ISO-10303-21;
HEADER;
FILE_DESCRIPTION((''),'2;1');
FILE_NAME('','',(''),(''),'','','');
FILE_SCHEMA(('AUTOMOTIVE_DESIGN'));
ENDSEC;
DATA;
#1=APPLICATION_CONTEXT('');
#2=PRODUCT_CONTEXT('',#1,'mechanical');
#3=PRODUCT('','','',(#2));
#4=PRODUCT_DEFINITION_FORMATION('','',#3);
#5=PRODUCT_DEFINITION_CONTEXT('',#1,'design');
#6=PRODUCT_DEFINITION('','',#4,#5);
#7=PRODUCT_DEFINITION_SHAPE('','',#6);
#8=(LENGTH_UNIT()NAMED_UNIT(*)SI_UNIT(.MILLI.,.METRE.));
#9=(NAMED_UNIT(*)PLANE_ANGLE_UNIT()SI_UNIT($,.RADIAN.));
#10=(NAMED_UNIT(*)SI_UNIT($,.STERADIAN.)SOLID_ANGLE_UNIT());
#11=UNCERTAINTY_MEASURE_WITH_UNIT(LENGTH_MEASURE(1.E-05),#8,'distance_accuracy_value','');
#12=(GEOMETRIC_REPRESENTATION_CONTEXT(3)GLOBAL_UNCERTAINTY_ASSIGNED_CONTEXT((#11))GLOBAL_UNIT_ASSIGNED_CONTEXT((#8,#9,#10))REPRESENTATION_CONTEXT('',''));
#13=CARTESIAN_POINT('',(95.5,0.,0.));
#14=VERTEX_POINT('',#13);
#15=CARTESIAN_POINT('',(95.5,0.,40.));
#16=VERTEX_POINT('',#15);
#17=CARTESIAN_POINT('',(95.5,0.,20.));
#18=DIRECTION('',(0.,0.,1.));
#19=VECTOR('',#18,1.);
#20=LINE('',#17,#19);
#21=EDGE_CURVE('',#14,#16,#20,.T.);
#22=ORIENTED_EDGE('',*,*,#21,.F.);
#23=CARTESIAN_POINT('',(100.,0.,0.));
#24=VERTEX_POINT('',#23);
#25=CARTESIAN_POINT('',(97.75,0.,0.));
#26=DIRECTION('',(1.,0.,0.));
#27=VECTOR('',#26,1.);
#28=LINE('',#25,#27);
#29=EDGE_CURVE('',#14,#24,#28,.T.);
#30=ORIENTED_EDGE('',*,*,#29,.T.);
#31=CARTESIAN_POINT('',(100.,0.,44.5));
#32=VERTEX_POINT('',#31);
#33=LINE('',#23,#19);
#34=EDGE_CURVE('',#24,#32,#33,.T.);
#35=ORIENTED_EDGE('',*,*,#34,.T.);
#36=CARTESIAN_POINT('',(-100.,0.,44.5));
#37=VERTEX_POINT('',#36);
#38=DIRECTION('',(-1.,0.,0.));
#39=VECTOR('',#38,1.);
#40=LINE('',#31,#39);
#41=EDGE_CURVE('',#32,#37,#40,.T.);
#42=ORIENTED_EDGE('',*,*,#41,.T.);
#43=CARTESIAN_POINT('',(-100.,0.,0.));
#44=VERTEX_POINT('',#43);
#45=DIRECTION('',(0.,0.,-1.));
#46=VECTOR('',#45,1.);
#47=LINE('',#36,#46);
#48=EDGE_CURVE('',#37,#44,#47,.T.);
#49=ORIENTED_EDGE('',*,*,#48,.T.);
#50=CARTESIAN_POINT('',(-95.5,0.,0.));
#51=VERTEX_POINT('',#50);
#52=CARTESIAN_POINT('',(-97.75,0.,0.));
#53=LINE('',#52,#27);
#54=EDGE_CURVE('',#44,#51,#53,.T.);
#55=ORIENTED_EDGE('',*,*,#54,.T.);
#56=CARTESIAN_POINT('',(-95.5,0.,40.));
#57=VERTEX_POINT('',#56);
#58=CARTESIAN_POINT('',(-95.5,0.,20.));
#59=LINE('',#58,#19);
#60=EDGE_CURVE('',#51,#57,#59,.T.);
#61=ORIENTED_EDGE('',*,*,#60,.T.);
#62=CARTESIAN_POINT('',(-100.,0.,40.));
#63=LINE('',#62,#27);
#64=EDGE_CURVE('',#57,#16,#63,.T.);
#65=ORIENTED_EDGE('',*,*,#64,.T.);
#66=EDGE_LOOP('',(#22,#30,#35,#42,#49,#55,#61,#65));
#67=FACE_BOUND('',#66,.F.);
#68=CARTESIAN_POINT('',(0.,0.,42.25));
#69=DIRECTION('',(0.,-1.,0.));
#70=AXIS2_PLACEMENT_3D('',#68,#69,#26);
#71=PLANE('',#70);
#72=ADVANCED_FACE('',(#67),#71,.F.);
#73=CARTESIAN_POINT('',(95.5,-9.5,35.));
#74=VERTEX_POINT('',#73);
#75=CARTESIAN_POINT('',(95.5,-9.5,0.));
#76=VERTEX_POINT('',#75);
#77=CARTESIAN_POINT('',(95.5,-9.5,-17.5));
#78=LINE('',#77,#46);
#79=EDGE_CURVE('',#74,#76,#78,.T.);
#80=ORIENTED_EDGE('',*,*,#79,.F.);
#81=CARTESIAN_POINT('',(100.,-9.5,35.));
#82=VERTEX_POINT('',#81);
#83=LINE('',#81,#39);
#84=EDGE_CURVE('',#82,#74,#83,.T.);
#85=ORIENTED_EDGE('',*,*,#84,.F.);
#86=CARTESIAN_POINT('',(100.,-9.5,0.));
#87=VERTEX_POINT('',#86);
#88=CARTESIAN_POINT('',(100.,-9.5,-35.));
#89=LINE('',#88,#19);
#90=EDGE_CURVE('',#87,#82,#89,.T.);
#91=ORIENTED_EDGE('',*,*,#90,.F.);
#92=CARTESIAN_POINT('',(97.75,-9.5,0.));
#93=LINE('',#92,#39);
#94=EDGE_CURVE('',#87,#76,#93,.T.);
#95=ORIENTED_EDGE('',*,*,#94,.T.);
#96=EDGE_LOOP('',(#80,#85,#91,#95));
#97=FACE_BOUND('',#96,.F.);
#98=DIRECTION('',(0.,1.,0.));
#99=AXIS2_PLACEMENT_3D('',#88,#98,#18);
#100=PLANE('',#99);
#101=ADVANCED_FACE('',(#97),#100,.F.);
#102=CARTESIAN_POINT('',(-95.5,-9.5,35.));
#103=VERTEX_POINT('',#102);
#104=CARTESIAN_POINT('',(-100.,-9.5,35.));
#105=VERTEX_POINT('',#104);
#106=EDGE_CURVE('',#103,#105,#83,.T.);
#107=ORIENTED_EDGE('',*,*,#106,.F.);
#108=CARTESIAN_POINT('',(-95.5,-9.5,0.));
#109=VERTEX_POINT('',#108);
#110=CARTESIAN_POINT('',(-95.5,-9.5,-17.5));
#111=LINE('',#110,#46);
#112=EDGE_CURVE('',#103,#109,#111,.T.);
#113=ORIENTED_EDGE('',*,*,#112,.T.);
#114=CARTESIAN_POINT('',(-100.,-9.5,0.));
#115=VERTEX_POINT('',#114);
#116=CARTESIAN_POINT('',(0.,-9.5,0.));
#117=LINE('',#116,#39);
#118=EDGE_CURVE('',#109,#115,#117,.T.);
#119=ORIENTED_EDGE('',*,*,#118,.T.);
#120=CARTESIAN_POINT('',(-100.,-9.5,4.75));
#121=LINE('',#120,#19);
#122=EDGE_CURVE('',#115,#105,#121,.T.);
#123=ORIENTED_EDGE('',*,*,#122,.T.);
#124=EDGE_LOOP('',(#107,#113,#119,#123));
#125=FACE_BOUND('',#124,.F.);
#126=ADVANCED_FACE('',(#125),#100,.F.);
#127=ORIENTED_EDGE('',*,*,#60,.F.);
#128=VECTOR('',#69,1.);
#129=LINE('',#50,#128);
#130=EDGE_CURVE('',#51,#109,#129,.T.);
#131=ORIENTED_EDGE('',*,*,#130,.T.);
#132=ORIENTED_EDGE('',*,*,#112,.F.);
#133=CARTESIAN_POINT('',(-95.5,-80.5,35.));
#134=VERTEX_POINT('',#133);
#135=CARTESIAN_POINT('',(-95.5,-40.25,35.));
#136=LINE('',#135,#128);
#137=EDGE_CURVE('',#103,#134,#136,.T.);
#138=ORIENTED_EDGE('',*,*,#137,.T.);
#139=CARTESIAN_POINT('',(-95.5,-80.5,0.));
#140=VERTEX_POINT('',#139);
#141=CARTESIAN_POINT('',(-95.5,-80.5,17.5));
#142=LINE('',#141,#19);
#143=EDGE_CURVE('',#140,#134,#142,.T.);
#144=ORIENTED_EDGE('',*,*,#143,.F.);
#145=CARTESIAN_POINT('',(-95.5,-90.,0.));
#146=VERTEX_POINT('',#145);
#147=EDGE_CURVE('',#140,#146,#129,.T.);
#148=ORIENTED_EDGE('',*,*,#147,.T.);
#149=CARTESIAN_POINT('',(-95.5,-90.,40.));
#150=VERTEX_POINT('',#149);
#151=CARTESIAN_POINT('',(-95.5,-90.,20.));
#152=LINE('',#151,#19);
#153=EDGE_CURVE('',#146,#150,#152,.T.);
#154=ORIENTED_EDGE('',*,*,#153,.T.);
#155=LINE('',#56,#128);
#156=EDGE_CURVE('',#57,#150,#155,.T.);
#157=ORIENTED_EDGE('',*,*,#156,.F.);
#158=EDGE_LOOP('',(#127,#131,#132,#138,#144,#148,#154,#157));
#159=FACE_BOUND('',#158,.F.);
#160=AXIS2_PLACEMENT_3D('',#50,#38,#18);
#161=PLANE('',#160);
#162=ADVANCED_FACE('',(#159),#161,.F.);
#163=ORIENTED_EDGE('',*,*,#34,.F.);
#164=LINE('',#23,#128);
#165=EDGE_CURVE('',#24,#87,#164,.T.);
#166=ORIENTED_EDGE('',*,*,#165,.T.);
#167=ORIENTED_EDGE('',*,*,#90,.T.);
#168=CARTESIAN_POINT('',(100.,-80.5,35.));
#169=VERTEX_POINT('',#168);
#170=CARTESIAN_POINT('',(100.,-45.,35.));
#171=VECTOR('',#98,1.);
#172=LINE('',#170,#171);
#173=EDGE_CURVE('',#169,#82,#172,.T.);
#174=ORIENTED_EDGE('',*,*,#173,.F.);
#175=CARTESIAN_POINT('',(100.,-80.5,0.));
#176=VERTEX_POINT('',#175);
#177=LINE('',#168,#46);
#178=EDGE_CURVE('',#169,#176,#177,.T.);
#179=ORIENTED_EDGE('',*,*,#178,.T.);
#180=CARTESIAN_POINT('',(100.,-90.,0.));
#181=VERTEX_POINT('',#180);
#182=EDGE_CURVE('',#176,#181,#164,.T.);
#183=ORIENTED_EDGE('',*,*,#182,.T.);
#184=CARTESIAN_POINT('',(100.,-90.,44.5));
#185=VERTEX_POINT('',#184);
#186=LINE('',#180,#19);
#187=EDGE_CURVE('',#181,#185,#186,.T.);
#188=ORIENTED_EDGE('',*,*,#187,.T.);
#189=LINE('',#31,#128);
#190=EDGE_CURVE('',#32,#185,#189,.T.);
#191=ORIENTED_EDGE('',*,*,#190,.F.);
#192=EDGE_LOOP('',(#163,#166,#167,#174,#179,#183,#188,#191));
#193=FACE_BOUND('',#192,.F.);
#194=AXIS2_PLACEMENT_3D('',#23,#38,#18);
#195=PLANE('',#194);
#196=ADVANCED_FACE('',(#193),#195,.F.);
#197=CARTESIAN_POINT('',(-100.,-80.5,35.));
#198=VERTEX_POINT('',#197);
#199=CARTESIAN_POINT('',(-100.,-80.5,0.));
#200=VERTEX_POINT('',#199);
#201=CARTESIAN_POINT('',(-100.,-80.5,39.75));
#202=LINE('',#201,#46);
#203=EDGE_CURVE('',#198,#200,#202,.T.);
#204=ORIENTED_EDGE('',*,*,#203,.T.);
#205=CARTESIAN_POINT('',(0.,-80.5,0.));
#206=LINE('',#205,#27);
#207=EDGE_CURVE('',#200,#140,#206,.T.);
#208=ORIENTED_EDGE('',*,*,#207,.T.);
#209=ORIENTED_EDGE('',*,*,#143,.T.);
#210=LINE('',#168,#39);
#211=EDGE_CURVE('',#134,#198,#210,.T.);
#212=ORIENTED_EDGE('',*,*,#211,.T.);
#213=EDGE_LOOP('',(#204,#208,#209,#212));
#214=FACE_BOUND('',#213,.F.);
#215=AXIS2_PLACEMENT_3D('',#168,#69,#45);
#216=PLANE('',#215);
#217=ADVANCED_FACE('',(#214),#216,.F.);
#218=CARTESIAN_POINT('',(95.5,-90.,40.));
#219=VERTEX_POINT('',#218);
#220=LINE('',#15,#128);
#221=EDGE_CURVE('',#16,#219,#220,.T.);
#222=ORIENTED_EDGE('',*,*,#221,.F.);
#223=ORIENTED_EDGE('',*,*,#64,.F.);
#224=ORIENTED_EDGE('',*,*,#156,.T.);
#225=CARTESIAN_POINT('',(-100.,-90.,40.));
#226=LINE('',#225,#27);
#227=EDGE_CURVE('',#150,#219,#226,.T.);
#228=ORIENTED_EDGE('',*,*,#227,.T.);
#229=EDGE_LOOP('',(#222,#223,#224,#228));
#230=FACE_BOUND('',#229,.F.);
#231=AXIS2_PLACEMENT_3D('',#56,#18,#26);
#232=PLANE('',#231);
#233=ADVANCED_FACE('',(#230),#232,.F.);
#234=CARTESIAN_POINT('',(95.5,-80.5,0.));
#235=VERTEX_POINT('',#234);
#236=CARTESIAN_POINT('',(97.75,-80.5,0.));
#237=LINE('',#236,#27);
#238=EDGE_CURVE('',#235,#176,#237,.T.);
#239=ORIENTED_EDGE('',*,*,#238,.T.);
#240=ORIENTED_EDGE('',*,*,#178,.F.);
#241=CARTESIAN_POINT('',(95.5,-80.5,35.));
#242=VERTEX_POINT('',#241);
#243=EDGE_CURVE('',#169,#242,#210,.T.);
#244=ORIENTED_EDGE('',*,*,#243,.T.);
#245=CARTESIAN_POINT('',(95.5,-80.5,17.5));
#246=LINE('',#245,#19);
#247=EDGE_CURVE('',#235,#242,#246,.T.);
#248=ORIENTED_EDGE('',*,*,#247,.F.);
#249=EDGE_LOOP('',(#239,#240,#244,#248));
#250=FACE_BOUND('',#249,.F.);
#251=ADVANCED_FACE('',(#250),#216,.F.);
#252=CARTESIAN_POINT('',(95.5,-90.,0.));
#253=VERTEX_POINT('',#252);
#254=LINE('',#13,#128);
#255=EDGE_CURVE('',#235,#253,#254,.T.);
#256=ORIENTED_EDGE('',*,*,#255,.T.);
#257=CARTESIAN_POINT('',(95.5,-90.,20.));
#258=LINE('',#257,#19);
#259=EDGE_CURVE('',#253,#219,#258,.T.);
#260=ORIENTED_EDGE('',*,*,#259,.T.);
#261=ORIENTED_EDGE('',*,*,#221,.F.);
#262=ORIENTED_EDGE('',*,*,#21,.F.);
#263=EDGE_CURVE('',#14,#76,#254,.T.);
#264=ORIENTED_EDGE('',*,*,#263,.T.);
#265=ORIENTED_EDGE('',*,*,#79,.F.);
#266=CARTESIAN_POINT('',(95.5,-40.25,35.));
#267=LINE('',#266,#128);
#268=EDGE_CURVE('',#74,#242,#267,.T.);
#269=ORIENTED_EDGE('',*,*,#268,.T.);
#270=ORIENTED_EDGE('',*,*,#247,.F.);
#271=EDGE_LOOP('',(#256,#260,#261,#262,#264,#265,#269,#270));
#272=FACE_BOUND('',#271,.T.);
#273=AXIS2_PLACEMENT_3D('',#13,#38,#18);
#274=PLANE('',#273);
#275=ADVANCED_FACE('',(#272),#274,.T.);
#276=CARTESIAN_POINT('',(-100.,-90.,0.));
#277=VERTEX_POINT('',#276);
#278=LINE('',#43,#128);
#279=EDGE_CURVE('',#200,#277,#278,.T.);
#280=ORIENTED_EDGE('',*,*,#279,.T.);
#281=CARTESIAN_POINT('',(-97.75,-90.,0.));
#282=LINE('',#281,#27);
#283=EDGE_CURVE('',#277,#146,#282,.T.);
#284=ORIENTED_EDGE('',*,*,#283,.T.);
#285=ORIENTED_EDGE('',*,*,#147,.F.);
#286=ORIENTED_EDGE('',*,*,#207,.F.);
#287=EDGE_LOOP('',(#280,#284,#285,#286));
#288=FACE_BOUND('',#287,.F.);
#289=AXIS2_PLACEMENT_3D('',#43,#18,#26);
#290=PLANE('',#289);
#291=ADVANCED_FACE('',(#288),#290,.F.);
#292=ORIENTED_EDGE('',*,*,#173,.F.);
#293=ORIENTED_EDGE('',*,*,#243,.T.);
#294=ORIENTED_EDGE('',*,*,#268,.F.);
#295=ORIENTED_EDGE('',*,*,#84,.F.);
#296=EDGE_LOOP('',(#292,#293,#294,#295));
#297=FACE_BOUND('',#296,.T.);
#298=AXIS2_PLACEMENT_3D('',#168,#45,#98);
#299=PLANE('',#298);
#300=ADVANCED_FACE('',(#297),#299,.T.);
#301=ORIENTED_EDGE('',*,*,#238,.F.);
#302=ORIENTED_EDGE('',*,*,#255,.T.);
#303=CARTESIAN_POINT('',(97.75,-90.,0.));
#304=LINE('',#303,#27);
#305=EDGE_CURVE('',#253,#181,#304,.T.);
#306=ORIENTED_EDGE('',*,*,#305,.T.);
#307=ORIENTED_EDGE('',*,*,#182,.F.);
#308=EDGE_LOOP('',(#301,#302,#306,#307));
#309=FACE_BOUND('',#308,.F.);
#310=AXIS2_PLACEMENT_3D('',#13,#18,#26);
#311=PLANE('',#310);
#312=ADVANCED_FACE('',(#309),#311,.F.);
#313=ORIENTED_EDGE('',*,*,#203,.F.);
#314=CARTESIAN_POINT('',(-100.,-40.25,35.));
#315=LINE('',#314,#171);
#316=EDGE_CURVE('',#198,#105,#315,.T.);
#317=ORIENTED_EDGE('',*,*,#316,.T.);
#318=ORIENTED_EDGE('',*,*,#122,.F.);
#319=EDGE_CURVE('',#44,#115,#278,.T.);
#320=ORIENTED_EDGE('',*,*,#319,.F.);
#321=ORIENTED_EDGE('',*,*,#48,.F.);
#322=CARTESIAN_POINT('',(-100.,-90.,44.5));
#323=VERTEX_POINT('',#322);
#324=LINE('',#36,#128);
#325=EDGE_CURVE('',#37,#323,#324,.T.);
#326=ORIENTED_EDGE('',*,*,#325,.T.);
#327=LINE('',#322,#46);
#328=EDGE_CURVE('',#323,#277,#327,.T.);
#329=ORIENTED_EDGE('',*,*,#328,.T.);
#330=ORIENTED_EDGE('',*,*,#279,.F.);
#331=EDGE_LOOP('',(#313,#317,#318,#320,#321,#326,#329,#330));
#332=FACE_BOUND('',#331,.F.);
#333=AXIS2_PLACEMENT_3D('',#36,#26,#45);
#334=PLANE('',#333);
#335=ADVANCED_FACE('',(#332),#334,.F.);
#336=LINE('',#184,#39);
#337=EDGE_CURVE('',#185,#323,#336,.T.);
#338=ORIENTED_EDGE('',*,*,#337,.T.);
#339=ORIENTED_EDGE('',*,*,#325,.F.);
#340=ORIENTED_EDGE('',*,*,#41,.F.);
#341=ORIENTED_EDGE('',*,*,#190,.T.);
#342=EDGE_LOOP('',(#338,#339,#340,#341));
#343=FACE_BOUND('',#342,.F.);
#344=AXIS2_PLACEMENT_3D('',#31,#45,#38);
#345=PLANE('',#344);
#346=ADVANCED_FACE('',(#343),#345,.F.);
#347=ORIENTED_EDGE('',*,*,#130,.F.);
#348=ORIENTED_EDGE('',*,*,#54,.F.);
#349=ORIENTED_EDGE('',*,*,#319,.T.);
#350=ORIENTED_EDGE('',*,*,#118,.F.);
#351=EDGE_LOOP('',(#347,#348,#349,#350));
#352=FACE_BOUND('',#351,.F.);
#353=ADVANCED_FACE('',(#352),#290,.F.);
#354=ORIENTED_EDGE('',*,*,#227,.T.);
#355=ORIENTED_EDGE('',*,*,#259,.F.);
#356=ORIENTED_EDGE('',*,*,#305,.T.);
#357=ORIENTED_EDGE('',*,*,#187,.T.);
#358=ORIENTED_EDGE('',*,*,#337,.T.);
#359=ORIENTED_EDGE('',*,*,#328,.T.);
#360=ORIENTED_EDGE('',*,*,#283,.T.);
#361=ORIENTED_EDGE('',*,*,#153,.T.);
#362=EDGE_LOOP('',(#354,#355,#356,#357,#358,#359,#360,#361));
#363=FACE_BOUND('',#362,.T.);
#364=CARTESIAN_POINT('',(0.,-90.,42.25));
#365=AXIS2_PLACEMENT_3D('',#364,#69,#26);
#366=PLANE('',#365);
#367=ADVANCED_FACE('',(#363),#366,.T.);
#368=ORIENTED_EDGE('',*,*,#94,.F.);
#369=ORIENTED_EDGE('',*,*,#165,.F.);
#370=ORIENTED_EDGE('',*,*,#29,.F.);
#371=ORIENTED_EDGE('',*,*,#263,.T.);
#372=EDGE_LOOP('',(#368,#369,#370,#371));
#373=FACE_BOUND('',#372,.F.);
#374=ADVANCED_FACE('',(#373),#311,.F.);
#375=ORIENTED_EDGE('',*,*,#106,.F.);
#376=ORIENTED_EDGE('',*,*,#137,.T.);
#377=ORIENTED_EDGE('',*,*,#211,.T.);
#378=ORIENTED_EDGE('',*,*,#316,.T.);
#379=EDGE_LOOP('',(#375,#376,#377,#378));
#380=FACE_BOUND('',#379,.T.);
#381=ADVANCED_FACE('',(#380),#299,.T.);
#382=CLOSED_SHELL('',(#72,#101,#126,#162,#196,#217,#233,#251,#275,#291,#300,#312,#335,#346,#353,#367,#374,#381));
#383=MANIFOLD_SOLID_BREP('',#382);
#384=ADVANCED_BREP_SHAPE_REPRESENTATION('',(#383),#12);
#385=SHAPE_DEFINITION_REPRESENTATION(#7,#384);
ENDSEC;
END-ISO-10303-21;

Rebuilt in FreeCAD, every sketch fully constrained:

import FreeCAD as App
import Part
import Sketcher
Q = App.Units.Quantity

doc = App.newDocument("Part")
body = doc.addObject("PartDesign::Body", "Body")

sketch1 = doc.addObject("Sketcher::SketchObject", "Sketch")
body.addObject(sketch1)
sketch1.AttachmentSupport = (doc.XZ_Plane, [""])
sketch1.MapMode = "FlatFace"
sketch1.addGeometry([
    Part.LineSegment(App.Vector(-100, 44.5, 0), App.Vector(-100, 0, 0)),
    Part.LineSegment(App.Vector(-100, 0, 0), App.Vector(-95.5, 0, 0)),
    Part.LineSegment(App.Vector(-95.5, 0, 0), App.Vector(-95.5, 40, 0)),
    Part.LineSegment(App.Vector(-95.5, 40, 0), App.Vector(95.5, 40, 0)),
    Part.LineSegment(App.Vector(95.5, 40, 0), App.Vector(95.5, 0, 0)),
    Part.LineSegment(App.Vector(95.5, 0, 0), App.Vector(100, 0, 0)),
    Part.LineSegment(App.Vector(100, 0, 0), App.Vector(100, 44.5, 0)),
    Part.LineSegment(App.Vector(100, 44.5, 0), App.Vector(-100, 44.5, 0)),
], False)
sketch1.addConstraint([
    Sketcher.Constraint("Coincident", 0, 2, 1, 1),
    Sketcher.Constraint("Coincident", 1, 2, 2, 1),
    Sketcher.Constraint("Coincident", 2, 2, 3, 1),
    Sketcher.Constraint("Coincident", 3, 2, 4, 1),
    Sketcher.Constraint("Coincident", 4, 2, 5, 1),
    Sketcher.Constraint("Coincident", 5, 2, 6, 1),
    Sketcher.Constraint("Coincident", 6, 2, 7, 1),
    Sketcher.Constraint("Coincident", 7, 2, 0, 1),
    Sketcher.Constraint("Vertical", 0),
    Sketcher.Constraint("Horizontal", 1),
    Sketcher.Constraint("Vertical", 2),
    Sketcher.Constraint("Horizontal", 3),
    Sketcher.Constraint("Vertical", 4),
    Sketcher.Constraint("Horizontal", 5),
    Sketcher.Constraint("Vertical", 6),
    Sketcher.Constraint("Horizontal", 7),
    Sketcher.Constraint("Symmetric", 1, 2, 4, 2, -1, 1),
    Sketcher.Constraint("Symmetric", 0, 2, 5, 2, -2),
    Sketcher.Constraint("DistanceX", 3, 1, 3, 2, Q("191 mm")),
    Sketcher.Constraint("DistanceX", 7, 2, 7, 1, Q("200 mm")),
    Sketcher.Constraint("DistanceY", 2, 1, 2, 2, Q("40 mm")),
    Sketcher.Constraint("DistanceY", 0, 2, 0, 1, Q("44.5 mm")),
])
pad1 = doc.addObject("PartDesign::Pad", "Pad")
body.addObject(pad1)
pad1.Profile = sketch1
pad1.Length = 90

sketch2 = doc.addObject("Sketcher::SketchObject", "Sketch001")
body.addObject(sketch2)
sketch2.AttachmentSupport = (doc.YZ_Plane, [""])
sketch2.MapMode = "FlatFace"
sketch2.AttachmentOffset = App.Placement(App.Vector(0, 0, 100), App.Rotation())
sketch2.addGeometry([
    Part.LineSegment(App.Vector(-80, 35, 0), App.Vector(-80, -35, 0)),
    Part.LineSegment(App.Vector(-80, -35, 0), App.Vector(-10, -35, 0)),
    Part.LineSegment(App.Vector(-10, -35, 0), App.Vector(-10, 35, 0)),
    Part.LineSegment(App.Vector(-10, 35, 0), App.Vector(-80, 35, 0)),
], False)
sketch2.addConstraint([
    Sketcher.Constraint("Coincident", 0, 2, 1, 1),
    Sketcher.Constraint("Coincident", 1, 2, 2, 1),
    Sketcher.Constraint("Coincident", 2, 2, 3, 1),
    Sketcher.Constraint("Coincident", 3, 2, 0, 1),
    Sketcher.Constraint("Vertical", 0),
    Sketcher.Constraint("Horizontal", 1),
    Sketcher.Constraint("Vertical", 2),
    Sketcher.Constraint("Horizontal", 3),
    Sketcher.Constraint("DistanceX", 1, 1, 1, 2, Q("71 mm")),
    Sketcher.Constraint("DistanceY", 0, 2, 0, 1, Q("70 mm")),
    Sketcher.Constraint("DistanceY", 0, 2, -1, 1, Q("35 mm")),
    Sketcher.Constraint("DistanceX", 0, 2, -1, 1, Q("80.5 mm")),
])
pocket1 = doc.addObject("PartDesign::Pocket", "Pocket")
body.addObject(pocket1)
pocket1.Profile = sketch2
pocket1.Type = "ThroughAll"

doc.recompute()
